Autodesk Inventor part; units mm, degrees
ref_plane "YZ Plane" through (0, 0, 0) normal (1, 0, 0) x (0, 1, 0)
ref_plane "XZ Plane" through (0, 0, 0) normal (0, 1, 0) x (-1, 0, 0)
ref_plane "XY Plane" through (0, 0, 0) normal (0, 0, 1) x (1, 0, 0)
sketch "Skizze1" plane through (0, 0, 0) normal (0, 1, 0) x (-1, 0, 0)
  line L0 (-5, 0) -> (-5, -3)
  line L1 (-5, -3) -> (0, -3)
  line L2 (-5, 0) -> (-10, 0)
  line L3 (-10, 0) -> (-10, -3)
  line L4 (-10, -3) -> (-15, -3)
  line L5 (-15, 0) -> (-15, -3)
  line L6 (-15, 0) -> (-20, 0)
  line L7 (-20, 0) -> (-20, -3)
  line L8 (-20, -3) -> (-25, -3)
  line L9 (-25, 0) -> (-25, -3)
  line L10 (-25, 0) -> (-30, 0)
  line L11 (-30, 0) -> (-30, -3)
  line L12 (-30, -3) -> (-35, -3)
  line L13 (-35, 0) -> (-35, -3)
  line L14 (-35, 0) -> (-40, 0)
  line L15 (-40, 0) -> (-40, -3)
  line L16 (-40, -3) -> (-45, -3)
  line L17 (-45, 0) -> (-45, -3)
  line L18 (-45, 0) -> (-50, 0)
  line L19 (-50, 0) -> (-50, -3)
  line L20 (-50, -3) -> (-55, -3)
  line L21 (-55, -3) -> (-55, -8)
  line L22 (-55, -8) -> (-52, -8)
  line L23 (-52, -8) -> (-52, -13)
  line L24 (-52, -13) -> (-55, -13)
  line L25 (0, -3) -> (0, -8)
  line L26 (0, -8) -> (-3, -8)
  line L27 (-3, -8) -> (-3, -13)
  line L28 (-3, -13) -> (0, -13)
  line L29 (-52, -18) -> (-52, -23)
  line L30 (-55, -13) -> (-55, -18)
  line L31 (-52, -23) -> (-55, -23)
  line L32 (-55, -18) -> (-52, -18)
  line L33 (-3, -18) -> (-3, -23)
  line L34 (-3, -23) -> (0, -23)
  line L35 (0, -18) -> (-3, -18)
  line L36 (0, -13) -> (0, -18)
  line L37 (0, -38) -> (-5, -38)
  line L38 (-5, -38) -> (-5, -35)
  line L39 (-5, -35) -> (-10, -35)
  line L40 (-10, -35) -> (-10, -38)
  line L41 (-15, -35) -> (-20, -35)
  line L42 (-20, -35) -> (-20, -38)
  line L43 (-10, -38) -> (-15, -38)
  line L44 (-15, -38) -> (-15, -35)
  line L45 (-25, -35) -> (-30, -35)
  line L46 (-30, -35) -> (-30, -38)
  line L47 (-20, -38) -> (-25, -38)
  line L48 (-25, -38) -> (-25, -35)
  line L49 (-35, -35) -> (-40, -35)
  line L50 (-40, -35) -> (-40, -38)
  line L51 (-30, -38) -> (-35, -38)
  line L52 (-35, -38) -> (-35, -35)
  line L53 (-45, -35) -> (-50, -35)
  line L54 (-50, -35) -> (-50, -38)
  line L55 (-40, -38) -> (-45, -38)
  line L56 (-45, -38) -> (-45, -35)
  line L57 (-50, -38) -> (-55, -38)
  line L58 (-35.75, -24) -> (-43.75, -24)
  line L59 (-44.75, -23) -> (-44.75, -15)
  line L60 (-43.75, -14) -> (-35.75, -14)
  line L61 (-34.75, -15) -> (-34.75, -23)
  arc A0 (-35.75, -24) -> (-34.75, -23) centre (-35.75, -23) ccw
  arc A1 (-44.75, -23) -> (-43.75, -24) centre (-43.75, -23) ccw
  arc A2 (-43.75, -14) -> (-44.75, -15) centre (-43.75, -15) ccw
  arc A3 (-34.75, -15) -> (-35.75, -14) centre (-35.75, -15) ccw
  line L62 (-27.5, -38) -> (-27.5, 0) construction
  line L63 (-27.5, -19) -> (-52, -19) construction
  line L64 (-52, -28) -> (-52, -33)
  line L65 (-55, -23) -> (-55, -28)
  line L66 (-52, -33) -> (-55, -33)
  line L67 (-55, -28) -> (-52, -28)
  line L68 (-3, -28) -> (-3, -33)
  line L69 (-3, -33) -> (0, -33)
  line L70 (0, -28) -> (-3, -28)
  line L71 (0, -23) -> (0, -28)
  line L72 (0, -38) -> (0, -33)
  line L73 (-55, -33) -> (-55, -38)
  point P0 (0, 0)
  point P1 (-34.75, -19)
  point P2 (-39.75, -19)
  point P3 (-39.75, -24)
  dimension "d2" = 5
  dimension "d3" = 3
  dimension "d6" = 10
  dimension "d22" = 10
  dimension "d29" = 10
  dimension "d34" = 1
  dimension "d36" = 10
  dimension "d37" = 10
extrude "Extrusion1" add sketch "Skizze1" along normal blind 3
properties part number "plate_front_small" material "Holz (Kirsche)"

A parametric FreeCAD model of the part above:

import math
import FreeCAD as App
import Part
import Sketcher

V = App.Vector
Q = App.Units.Quantity

doc = App.newDocument("Part")
body = doc.addObject("PartDesign::Body", "Body")

# Sketch on XZ plane
sketch1 = body.newObject("Sketcher::SketchObject", "Sketch")
sketch1.AttachmentSupport = (doc.getObject("XZ_Plane"), [""])
sketch1.MapMode = "FlatFace"
sketch1.addGeometry(Part.LineSegment(V(5, -3, 0), V(5, 0, 0)), False)
sketch1.addGeometry(Part.LineSegment(V(5, 0, 0), V(10, 0, 0)), False)
sketch1.addGeometry(Part.LineSegment(V(10, 0, 0), V(10, -3, 0)), False)
sketch1.addGeometry(Part.LineSegment(V(10, -3, 0), V(15, -3, 0)), False)
sketch1.addGeometry(Part.LineSegment(V(15, -3, 0), V(15, 0, 0)), False)
sketch1.addGeometry(Part.LineSegment(V(15, 0, 0), V(20, 0, 0)), False)
sketch1.addGeometry(Part.LineSegment(V(20, 0, 0), V(20, -3, 0)), False)
sketch1.addGeometry(Part.LineSegment(V(20, -3, 0), V(25, -3, 0)), False)
sketch1.addGeometry(Part.LineSegment(V(25, -3, 0), V(25, 0, 0)), False)
sketch1.addGeometry(Part.LineSegment(V(25, 0, 0), V(30, 0, 0)), False)
sketch1.addGeometry(Part.LineSegment(V(30, 0, 0), V(30, -3, 0)), False)
sketch1.addGeometry(Part.LineSegment(V(30, -3, 0), V(35, -3, 0)), False)
sketch1.addGeometry(Part.LineSegment(V(35, -3, 0), V(35, 0, 0)), False)
sketch1.addGeometry(Part.LineSegment(V(35, 0, 0), V(40, 0, 0)), False)
sketch1.addGeometry(Part.LineSegment(V(40, 0, 0), V(40, -3, 0)), False)
sketch1.addGeometry(Part.LineSegment(V(40, -3, 0), V(45, -3, 0)), False)
sketch1.addGeometry(Part.LineSegment(V(45, -3, 0), V(45, 0, 0)), False)
sketch1.addGeometry(Part.LineSegment(V(45, 0, 0), V(50, 0, 0)), False)
sketch1.addGeometry(Part.LineSegment(V(50, 0, 0), V(50, -3, 0)), False)
sketch1.addGeometry(Part.LineSegment(V(50, -3, 0), V(55, -3, 0)), False)
sketch1.addGeometry(Part.LineSegment(V(55, -3, 0), V(55, -8, 0)), False)
sketch1.addGeometry(Part.LineSegment(V(55, -8, 0), V(52, -8, 0)), False)
sketch1.addGeometry(Part.LineSegment(V(52, -8, 0), V(52, -13, 0)), False)
sketch1.addGeometry(Part.LineSegment(V(52, -13, 0), V(55, -13, 0)), False)
sketch1.addGeometry(Part.LineSegment(V(55, -13, 0), V(55, -18, 0)), False)
sketch1.addGeometry(Part.LineSegment(V(55, -18, 0), V(52, -18, 0)), False)
sketch1.addGeometry(Part.LineSegment(V(52, -18, 0), V(52, -23, 0)), False)
sketch1.addGeometry(Part.LineSegment(V(52, -23, 0), V(55, -23, 0)), False)
sketch1.addGeometry(Part.LineSegment(V(55, -23, 0), V(55, -28, 0)), False)
sketch1.addGeometry(Part.LineSegment(V(55, -28, 0), V(52, -28, 0)), False)
sketch1.addGeometry(Part.LineSegment(V(52, -28, 0), V(52, -33, 0)), False)
sketch1.addGeometry(Part.LineSegment(V(52, -33, 0), V(55, -33, 0)), False)
sketch1.addGeometry(Part.LineSegment(V(55, -33, 0), V(55, -38, 0)), False)
sketch1.addGeometry(Part.LineSegment(V(55, -38, 0), V(50, -38, 0)), False)
sketch1.addGeometry(Part.LineSegment(V(50, -38, 0), V(50, -35, 0)), False)
sketch1.addGeometry(Part.LineSegment(V(50, -35, 0), V(45, -35, 0)), False)
sketch1.addGeometry(Part.LineSegment(V(45, -35, 0), V(45, -38, 0)), False)
sketch1.addGeometry(Part.LineSegment(V(45, -38, 0), V(40, -38, 0)), False)
sketch1.addGeometry(Part.LineSegment(V(40, -38, 0), V(40, -35, 0)), False)
sketch1.addGeometry(Part.LineSegment(V(40, -35, 0), V(35, -35, 0)), False)
sketch1.addGeometry(Part.LineSegment(V(35, -35, 0), V(35, -38, 0)), False)
sketch1.addGeometry(Part.LineSegment(V(35, -38, 0), V(30, -38, 0)), False)
sketch1.addGeometry(Part.LineSegment(V(30, -38, 0), V(30, -35, 0)), False)
sketch1.addGeometry(Part.LineSegment(V(30, -35, 0), V(25, -35, 0)), False)
sketch1.addGeometry(Part.LineSegment(V(25, -35, 0), V(25, -38, 0)), False)
sketch1.addGeometry(Part.LineSegment(V(25, -38, 0), V(20, -38, 0)), False)
sketch1.addGeometry(Part.LineSegment(V(20, -38, 0), V(20, -35, 0)), False)
sketch1.addGeometry(Part.LineSegment(V(20, -35, 0), V(15, -35, 0)), False)
sketch1.addGeometry(Part.LineSegment(V(15, -35, 0), V(15, -38, 0)), False)
sketch1.addGeometry(Part.LineSegment(V(15, -38, 0), V(10, -38, 0)), False)
sketch1.addGeometry(Part.LineSegment(V(10, -38, 0), V(10, -35, 0)), False)
sketch1.addGeometry(Part.LineSegment(V(10, -35, 0), V(5, -35, 0)), False)
sketch1.addGeometry(Part.LineSegment(V(5, -35, 0), V(5, -38, 0)), False)
sketch1.addGeometry(Part.LineSegment(V(5, -38, 0), V(0, -38, 0)), False)
sketch1.addGeometry(Part.LineSegment(V(0, -38, 0), V(0, -33, 0)), False)
sketch1.addGeometry(Part.LineSegment(V(0, -33, 0), V(3, -33, 0)), False)
sketch1.addGeometry(Part.LineSegment(V(3, -33, 0), V(3, -28, 0)), False)
sketch1.addGeometry(Part.LineSegment(V(3, -28, 0), V(0, -28, 0)), False)
sketch1.addGeometry(Part.LineSegment(V(0, -28, 0), V(0, -23, 0)), False)
sketch1.addGeometry(Part.LineSegment(V(0, -23, 0), V(3, -23, 0)), False)
sketch1.addGeometry(Part.LineSegment(V(3, -23, 0), V(3, -18, 0)), False)
sketch1.addGeometry(Part.LineSegment(V(3, -18, 0), V(0, -18, 0)), False)
sketch1.addGeometry(Part.LineSegment(V(0, -18, 0), V(0, -13, 0)), False)
sketch1.addGeometry(Part.LineSegment(V(0, -13, 0), V(3, -13, 0)), False)
sketch1.addGeometry(Part.LineSegment(V(3, -13, 0), V(3, -8, 0)), False)
sketch1.addGeometry(Part.LineSegment(V(3, -8, 0), V(0, -8, 0)), False)
sketch1.addGeometry(Part.LineSegment(V(0, -8, 0), V(0, -3, 0)), False)
sketch1.addGeometry(Part.LineSegment(V(0, -3, 0), V(5, -3, 0)), False)
sketch1.addGeometry(Part.ArcOfCircle(Part.Circle(V(35.75, -23, 0), V(0, 0, 1), 1), math.radians(180), math.radians(270)), False)
sketch1.addGeometry(Part.LineSegment(V(35.75, -24, 0), V(43.75, -24, 0)), False)
sketch1.addGeometry(Part.ArcOfCircle(Part.Circle(V(43.75, -23, 0), V(0, 0, 1), 1), math.radians(-90), math.radians(0)), False)
sketch1.addGeometry(Part.LineSegment(V(44.75, -23, 0), V(44.75, -15, 0)), False)
sketch1.addGeometry(Part.ArcOfCircle(Part.Circle(V(43.75, -15, 0), V(0, 0, 1), 1), math.radians(0), math.radians(90)), False)
sketch1.addGeometry(Part.LineSegment(V(43.75, -14, 0), V(35.75, -14, 0)), False)
sketch1.addGeometry(Part.ArcOfCircle(Part.Circle(V(35.75, -15, 0), V(0, 0, 1), 1), math.radians(90), math.radians(180)), False)
sketch1.addGeometry(Part.LineSegment(V(34.75, -15, 0), V(34.75, -23, 0)), False)
sketch1.addConstraint(Sketcher.Constraint("Coincident", 0, 2, 1, 1))
sketch1.addConstraint(Sketcher.Constraint("Coincident", 1, 2, 2, 1))
sketch1.addConstraint(Sketcher.Constraint("Coincident", 2, 2, 3, 1))
sketch1.addConstraint(Sketcher.Constraint("Coincident", 3, 2, 4, 1))
sketch1.addConstraint(Sketcher.Constraint("Coincident", 4, 2, 5, 1))
sketch1.addConstraint(Sketcher.Constraint("Coincident", 5, 2, 6, 1))
sketch1.addConstraint(Sketcher.Constraint("Coincident", 6, 2, 7, 1))
sketch1.addConstraint(Sketcher.Constraint("Coincident", 7, 2, 8, 1))
sketch1.addConstraint(Sketcher.Constraint("Coincident", 8, 2, 9, 1))
sketch1.addConstraint(Sketcher.Constraint("Coincident", 9, 2, 10, 1))
sketch1.addConstraint(Sketcher.Constraint("Coincident", 10, 2, 11, 1))
sketch1.addConstraint(Sketcher.Constraint("Coincident", 11, 2, 12, 1))
sketch1.addConstraint(Sketcher.Constraint("Coincident", 12, 2, 13, 1))
sketch1.addConstraint(Sketcher.Constraint("Coincident", 13, 2, 14, 1))
sketch1.addConstraint(Sketcher.Constraint("Coincident", 14, 2, 15, 1))
sketch1.addConstraint(Sketcher.Constraint("Coincident", 15, 2, 16, 1))
sketch1.addConstraint(Sketcher.Constraint("Coincident", 16, 2, 17, 1))
sketch1.addConstraint(Sketcher.Constraint("Coincident", 17, 2, 18, 1))
sketch1.addConstraint(Sketcher.Constraint("Coincident", 18, 2, 19, 1))
sketch1.addConstraint(Sketcher.Constraint("Coincident", 19, 2, 20, 1))
sketch1.addConstraint(Sketcher.Constraint("Coincident", 20, 2, 21, 1))
sketch1.addConstraint(Sketcher.Constraint("Coincident", 21, 2, 22, 1))
sketch1.addConstraint(Sketcher.Constraint("Coincident", 22, 2, 23, 1))
sketch1.addConstraint(Sketcher.Constraint("Coincident", 23, 2, 24, 1))
sketch1.addConstraint(Sketcher.Constraint("Coincident", 24, 2, 25, 1))
sketch1.addConstraint(Sketcher.Constraint("Coincident", 25, 2, 26, 1))
sketch1.addConstraint(Sketcher.Constraint("Coincident", 26, 2, 27, 1))
sketch1.addConstraint(Sketcher.Constraint("Coincident", 27, 2, 28, 1))
sketch1.addConstraint(Sketcher.Constraint("Coincident", 28, 2, 29, 1))
sketch1.addConstraint(Sketcher.Constraint("Coincident", 29, 2, 30, 1))
sketch1.addConstraint(Sketcher.Constraint("Coincident", 30, 2, 31, 1))
sketch1.addConstraint(Sketcher.Constraint("Coincident", 31, 2, 32, 1))
sketch1.addConstraint(Sketcher.Constraint("Coincident", 32, 2, 33, 1))
sketch1.addConstraint(Sketcher.Constraint("Coincident", 33, 2, 34, 1))
sketch1.addConstraint(Sketcher.Constraint("Coincident", 34, 2, 35, 1))
sketch1.addConstraint(Sketcher.Constraint("Coincident", 35, 2, 36, 1))
sketch1.addConstraint(Sketcher.Constraint("Coincident", 36, 2, 37, 1))
sketch1.addConstraint(Sketcher.Constraint("Coincident", 37, 2, 38, 1))
sketch1.addConstraint(Sketcher.Constraint("Coincident", 38, 2, 39, 1))
sketch1.addConstraint(Sketcher.Constraint("Coincident", 39, 2, 40, 1))
sketch1.addConstraint(Sketcher.Constraint("Coincident", 40, 2, 41, 1))
sketch1.addConstraint(Sketcher.Constraint("Coincident", 41, 2, 42, 1))
sketch1.addConstraint(Sketcher.Constraint("Coincident", 42, 2, 43, 1))
sketch1.addConstraint(Sketcher.Constraint("Coincident", 43, 2, 44, 1))
sketch1.addConstraint(Sketcher.Constraint("Coincident", 44, 2, 45, 1))
sketch1.addConstraint(Sketcher.Constraint("Coincident", 45, 2, 46, 1))
sketch1.addConstraint(Sketcher.Constraint("Coincident", 46, 2, 47, 1))
sketch1.addConstraint(Sketcher.Constraint("Coincident", 47, 2, 48, 1))
sketch1.addConstraint(Sketcher.Constraint("Coincident", 48, 2, 49, 1))
sketch1.addConstraint(Sketcher.Constraint("Coincident", 49, 2, 50, 1))
sketch1.addConstraint(Sketcher.Constraint("Coincident", 50, 2, 51, 1))
sketch1.addConstraint(Sketcher.Constraint("Coincident", 51, 2, 52, 1))
sketch1.addConstraint(Sketcher.Constraint("Coincident", 52, 2, 53, 1))
sketch1.addConstraint(Sketcher.Constraint("Coincident", 53, 2, 54, 1))
sketch1.addConstraint(Sketcher.Constraint("Coincident", 54, 2, 55, 1))
sketch1.addConstraint(Sketcher.Constraint("Coincident", 55, 2, 56, 1))
sketch1.addConstraint(Sketcher.Constraint("Coincident", 56, 2, 57, 1))
sketch1.addConstraint(Sketcher.Constraint("Coincident", 57, 2, 58, 1))
sketch1.addConstraint(Sketcher.Constraint("Coincident", 58, 2, 59, 1))
sketch1.addConstraint(Sketcher.Constraint("Coincident", 59, 2, 60, 1))
sketch1.addConstraint(Sketcher.Constraint("Coincident", 60, 2, 61, 1))
sketch1.addConstraint(Sketcher.Constraint("Coincident", 61, 2, 62, 1))
sketch1.addConstraint(Sketcher.Constraint("Coincident", 62, 2, 63, 1))
sketch1.addConstraint(Sketcher.Constraint("Coincident", 63, 2, 64, 1))
sketch1.addConstraint(Sketcher.Constraint("Coincident", 64, 2, 65, 1))
sketch1.addConstraint(Sketcher.Constraint("Coincident", 65, 2, 66, 1))
sketch1.addConstraint(Sketcher.Constraint("Coincident", 66, 2, 67, 1))
sketch1.addConstraint(Sketcher.Constraint("Coincident", 67, 2, 0, 1))
sketch1.addConstraint(Sketcher.Constraint("Tangent", 68, 2, 69, 1))
sketch1.addConstraint(Sketcher.Constraint("Tangent", 69, 2, 70, 1))
sketch1.addConstraint(Sketcher.Constraint("Tangent", 70, 2, 71, 1))
sketch1.addConstraint(Sketcher.Constraint("Tangent", 71, 2, 72, 1))
sketch1.addConstraint(Sketcher.Constraint("Tangent", 72, 2, 73, 1))
sketch1.addConstraint(Sketcher.Constraint("Tangent", 73, 2, 74, 1))
sketch1.addConstraint(Sketcher.Constraint("Tangent", 74, 2, 75, 1))
sketch1.addConstraint(Sketcher.Constraint("Tangent", 75, 2, 68, 1))
sketch1.addConstraint(Sketcher.Constraint("Vertical", 0))
sketch1.addConstraint(Sketcher.Constraint("Horizontal", 1))
sketch1.addConstraint(Sketcher.Constraint("Vertical", 2))
sketch1.addConstraint(Sketcher.Constraint("Horizontal", 3))
sketch1.addConstraint(Sketcher.Constraint("Vertical", 4))
sketch1.addConstraint(Sketcher.Constraint("Horizontal", 5))
sketch1.addConstraint(Sketcher.Constraint("Vertical", 6))
sketch1.addConstraint(Sketcher.Constraint("Horizontal", 7))
sketch1.addConstraint(Sketcher.Constraint("Vertical", 8))
sketch1.addConstraint(Sketcher.Constraint("Horizontal", 9))
sketch1.addConstraint(Sketcher.Constraint("Vertical", 10))
sketch1.addConstraint(Sketcher.Constraint("Horizontal", 11))
sketch1.addConstraint(Sketcher.Constraint("Vertical", 12))
sketch1.addConstraint(Sketcher.Constraint("Horizontal", 13))
sketch1.addConstraint(Sketcher.Constraint("Vertical", 14))
sketch1.addConstraint(Sketcher.Constraint("Horizontal", 15))
sketch1.addConstraint(Sketcher.Constraint("Vertical", 16))
sketch1.addConstraint(Sketcher.Constraint("Horizontal", 17))
sketch1.addConstraint(Sketcher.Constraint("Vertical", 18))
sketch1.addConstraint(Sketcher.Constraint("Horizontal", 19))
sketch1.addConstraint(Sketcher.Constraint("Vertical", 20))
sketch1.addConstraint(Sketcher.Constraint("Horizontal", 21))
sketch1.addConstraint(Sketcher.Constraint("Vertical", 22))
sketch1.addConstraint(Sketcher.Constraint("Horizontal", 23))
sketch1.addConstraint(Sketcher.Constraint("Vertical", 24))
sketch1.addConstraint(Sketcher.Constraint("Horizontal", 25))
sketch1.addConstraint(Sketcher.Constraint("Vertical", 26))
sketch1.addConstraint(Sketcher.Constraint("Horizontal", 27))
sketch1.addConstraint(Sketcher.Constraint("Vertical", 28))
sketch1.addConstraint(Sketcher.Constraint("Horizontal", 29))
sketch1.addConstraint(Sketcher.Constraint("Vertical", 30))
sketch1.addConstraint(Sketcher.Constraint("Horizontal", 31))
sketch1.addConstraint(Sketcher.Constraint("Vertical", 32))
sketch1.addConstraint(Sketcher.Constraint("Horizontal", 33))
sketch1.addConstraint(Sketcher.Constraint("Vertical", 34))
sketch1.addConstraint(Sketcher.Constraint("Horizontal", 35))
sketch1.addConstraint(Sketcher.Constraint("Vertical", 36))
sketch1.addConstraint(Sketcher.Constraint("Horizontal", 37))
sketch1.addConstraint(Sketcher.Constraint("Vertical", 38))
sketch1.addConstraint(Sketcher.Constraint("Horizontal", 39))
sketch1.addConstraint(Sketcher.Constraint("Vertical", 40))
sketch1.addConstraint(Sketcher.Constraint("Horizontal", 41))
sketch1.addConstraint(Sketcher.Constraint("Vertical", 42))
sketch1.addConstraint(Sketcher.Constraint("Horizontal", 43))
sketch1.addConstraint(Sketcher.Constraint("Vertical", 44))
sketch1.addConstraint(Sketcher.Constraint("Horizontal", 45))
sketch1.addConstraint(Sketcher.Constraint("Vertical", 46))
sketch1.addConstraint(Sketcher.Constraint("Horizontal", 47))
sketch1.addConstraint(Sketcher.Constraint("Vertical", 48))
sketch1.addConstraint(Sketcher.Constraint("Horizontal", 49))
sketch1.addConstraint(Sketcher.Constraint("Vertical", 50))
sketch1.addConstraint(Sketcher.Constraint("Horizontal", 51))
sketch1.addConstraint(Sketcher.Constraint("Vertical", 52))
sketch1.addConstraint(Sketcher.Constraint("Horizontal", 53))
sketch1.addConstraint(Sketcher.Constraint("Vertical", 54))
sketch1.addConstraint(Sketcher.Constraint("Horizontal", 55))
sketch1.addConstraint(Sketcher.Constraint("Vertical", 56))
sketch1.addConstraint(Sketcher.Constraint("Horizontal", 57))
sketch1.addConstraint(Sketcher.Constraint("Vertical", 58))
sketch1.addConstraint(Sketcher.Constraint("Horizontal", 59))
sketch1.addConstraint(Sketcher.Constraint("Vertical", 60))
sketch1.addConstraint(Sketcher.Constraint("Horizontal", 61))
sketch1.addConstraint(Sketcher.Constraint("Vertical", 62))
sketch1.addConstraint(Sketcher.Constraint("Horizontal", 63))
sketch1.addConstraint(Sketcher.Constraint("Vertical", 64))
sketch1.addConstraint(Sketcher.Constraint("Horizontal", 65))
sketch1.addConstraint(Sketcher.Constraint("Vertical", 66))
sketch1.addConstraint(Sketcher.Constraint("Horizontal", 67))
sketch1.addConstraint(Sketcher.Constraint("Horizontal", 69))
sketch1.addConstraint(Sketcher.Constraint("Vertical", 71))
sketch1.addConstraint(Sketcher.Constraint("Horizontal", 73))
sketch1.addConstraint(Sketcher.Constraint("Vertical", 75))
sketch1.addConstraint(Sketcher.Constraint("Equal", 68, 70))
sketch1.addConstraint(Sketcher.Constraint("Equal", 70, 72))
sketch1.addConstraint(Sketcher.Constraint("Equal", 72, 74))
sketch1.addConstraint(Sketcher.Constraint("PointOnObject", 0, 2, -1))
sketch1.addConstraint(Sketcher.Constraint("PointOnObject", 4, 2, -1))
sketch1.addConstraint(Sketcher.Constraint("PointOnObject", 8, 2, -1))
sketch1.addConstraint(Sketcher.Constraint("PointOnObject", 12, 2, -1))
sketch1.addConstraint(Sketcher.Constraint("PointOnObject", 16, 2, -1))
sketch1.addConstraint(Sketcher.Constraint("PointOnObject", 53, 2, -2))
sketch1.addConstraint(Sketcher.Constraint("PointOnObject", 57, 2, -2))
sketch1.addConstraint(Sketcher.Constraint("PointOnObject", 61, 2, -2))
sketch1.addConstraint(Sketcher.Constraint("PointOnObject", 65, 2, -2))
sketch1.addConstraint(Sketcher.Constraint("Horizontal", 3, 2, 6, 2))
sketch1.addConstraint(Sketcher.Constraint("Horizontal", 7, 2, 10, 2))
sketch1.addConstraint(Sketcher.Constraint("Horizontal", 11, 2, 14, 2))
sketch1.addConstraint(Sketcher.Constraint("Horizontal", 15, 2, 18, 2))
sketch1.addConstraint(Sketcher.Constraint("Horizontal", 70, 3, 26, 2))
sketch1.addConstraint(Sketcher.Constraint("Horizontal", 33, 2, 36, 2))
sketch1.addConstraint(Sketcher.Constraint("Horizontal", 35, 2, 38, 2))
sketch1.addConstraint(Sketcher.Constraint("Horizontal", 37, 2, 40, 2))
sketch1.addConstraint(Sketcher.Constraint("Horizontal", 39, 2, 42, 2))
sketch1.addConstraint(Sketcher.Constraint("Horizontal", 41, 2, 44, 2))
sketch1.addConstraint(Sketcher.Constraint("Horizontal", 43, 2, 46, 2))
sketch1.addConstraint(Sketcher.Constraint("Horizontal", 45, 2, 48, 2))
sketch1.addConstraint(Sketcher.Constraint("Horizontal", 47, 2, 50, 2))
sketch1.addConstraint(Sketcher.Constraint("Horizontal", 49, 2, 52, 2))
sketch1.addConstraint(Sketcher.Constraint("Horizontal", 31, 2, 54, 2))
sketch1.addConstraint(Sketcher.Constraint("Horizontal", 29, 2, 56, 2))
sketch1.addConstraint(Sketcher.Constraint("Horizontal", 27, 2, 58, 2))
sketch1.addConstraint(Sketcher.Constraint("Horizontal", 25, 2, 60, 2))
sketch1.addConstraint(Sketcher.Constraint("Horizontal", 23, 2, 62, 2))
sketch1.addConstraint(Sketcher.Constraint("Horizontal", 21, 2, 64, 2))
sketch1.addConstraint(Sketcher.Constraint("Horizontal", 19, 2, 66, 2))
sketch1.addConstraint(Sketcher.Constraint("Vertical", 20, 2, 23, 2))
sketch1.addConstraint(Sketcher.Constraint("Vertical", 22, 2, 25, 2))
sketch1.addConstraint(Sketcher.Constraint("Vertical", 24, 2, 27, 2))
sketch1.addConstraint(Sketcher.Constraint("Vertical", 26, 2, 29, 2))
sketch1.addConstraint(Sketcher.Constraint("Vertical", 28, 2, 31, 2))
sketch1.addConstraint(Sketcher.Constraint("Vertical", 18, 2, 33, 2))
sketch1.addConstraint(Sketcher.Constraint("Vertical", 16, 2, 35, 2))
sketch1.addConstraint(Sketcher.Constraint("Vertical", 14, 2, 37, 2))
sketch1.addConstraint(Sketcher.Constraint("Vertical", 12, 2, 39, 2))
sketch1.addConstraint(Sketcher.Constraint("Vertical", 10, 2, 41, 2))
sketch1.addConstraint(Sketcher.Constraint("Vertical", 8, 2, 43, 2))
sketch1.addConstraint(Sketcher.Constraint("Vertical", 6, 2, 45, 2))
sketch1.addConstraint(Sketcher.Constraint("Vertical", 4, 2, 47, 2))
sketch1.addConstraint(Sketcher.Constraint("Vertical", 2, 2, 49, 2))
sketch1.addConstraint(Sketcher.Constraint("Vertical", 0, 2, 51, 2))
sketch1.addConstraint(Sketcher.Constraint("Vertical", 56, 2, 59, 2))
sketch1.addConstraint(Sketcher.Constraint("Vertical", 60, 2, 63, 2))
sketch1.addConstraint(Sketcher.Constraint("Equal", 1, 3))
sketch1.addConstraint(Sketcher.Constraint("Equal", 3, 5))
sketch1.addConstraint(Sketcher.Constraint("Equal", 5, 7))
sketch1.addConstraint(Sketcher.Constraint("Equal", 7, 9))
sketch1.addConstraint(Sketcher.Constraint("Equal", 9, 11))
sketch1.addConstraint(Sketcher.Constraint("Equal", 11, 13))
sketch1.addConstraint(Sketcher.Constraint("Equal", 13, 15))
sketch1.addConstraint(Sketcher.Constraint("Equal", 15, 17))
sketch1.addConstraint(Sketcher.Constraint("Equal", 17, 19))
sketch1.addConstraint(Sketcher.Constraint("Equal", 51, 53))
sketch1.addConstraint(Sketcher.Constraint("Equal", 31, 55))
sketch1.addConstraint(Sketcher.Constraint("Equal", 65, 0))
sketch1.addConstraint(Sketcher.Constraint("Equal", 67, 20))
sketch1.addConstraint(Sketcher.Constraint("Equal", 20, 22))
sketch1.addConstraint(Sketcher.Constraint("Equal", 22, 24))
sketch1.addConstraint(Sketcher.Constraint("Equal", 24, 26))
sketch1.addConstraint(Sketcher.Constraint("Equal", 26, 28))
sketch1.addConstraint(Sketcher.Constraint("Equal", 28, 30))
sketch1.addConstraint(Sketcher.Constraint("Equal", 30, 32))
sketch1.addConstraint(Sketcher.Constraint("Equal", 18, 34))
sketch1.addConstraint(Sketcher.Constraint("Equal", 73, 71))
sketch1.addConstraint(Sketcher.Constraint("Radius", 68, Q("1 mm")))
sketch1.addConstraint(Sketcher.Constraint("DistanceX", 1, 1, 1, 2, Q("5 mm")))
sketch1.addConstraint(Sketcher.Constraint("DistanceX", 21, 2, 21, 1, Q("3 mm")))
sketch1.addConstraint(Sketcher.Constraint("DistanceX", 69, 1, 69, 2, Q("8 mm")))
sketch1.addConstraint(Sketcher.Constraint("DistanceX", -1, 1, 68, 3, Q("35.75 mm")))
pad1 = body.newObject("PartDesign::Pad", "Pad")
pad1.Profile = sketch1
pad1.Length = 3
pad1.Reversed = True

doc.recompute()
